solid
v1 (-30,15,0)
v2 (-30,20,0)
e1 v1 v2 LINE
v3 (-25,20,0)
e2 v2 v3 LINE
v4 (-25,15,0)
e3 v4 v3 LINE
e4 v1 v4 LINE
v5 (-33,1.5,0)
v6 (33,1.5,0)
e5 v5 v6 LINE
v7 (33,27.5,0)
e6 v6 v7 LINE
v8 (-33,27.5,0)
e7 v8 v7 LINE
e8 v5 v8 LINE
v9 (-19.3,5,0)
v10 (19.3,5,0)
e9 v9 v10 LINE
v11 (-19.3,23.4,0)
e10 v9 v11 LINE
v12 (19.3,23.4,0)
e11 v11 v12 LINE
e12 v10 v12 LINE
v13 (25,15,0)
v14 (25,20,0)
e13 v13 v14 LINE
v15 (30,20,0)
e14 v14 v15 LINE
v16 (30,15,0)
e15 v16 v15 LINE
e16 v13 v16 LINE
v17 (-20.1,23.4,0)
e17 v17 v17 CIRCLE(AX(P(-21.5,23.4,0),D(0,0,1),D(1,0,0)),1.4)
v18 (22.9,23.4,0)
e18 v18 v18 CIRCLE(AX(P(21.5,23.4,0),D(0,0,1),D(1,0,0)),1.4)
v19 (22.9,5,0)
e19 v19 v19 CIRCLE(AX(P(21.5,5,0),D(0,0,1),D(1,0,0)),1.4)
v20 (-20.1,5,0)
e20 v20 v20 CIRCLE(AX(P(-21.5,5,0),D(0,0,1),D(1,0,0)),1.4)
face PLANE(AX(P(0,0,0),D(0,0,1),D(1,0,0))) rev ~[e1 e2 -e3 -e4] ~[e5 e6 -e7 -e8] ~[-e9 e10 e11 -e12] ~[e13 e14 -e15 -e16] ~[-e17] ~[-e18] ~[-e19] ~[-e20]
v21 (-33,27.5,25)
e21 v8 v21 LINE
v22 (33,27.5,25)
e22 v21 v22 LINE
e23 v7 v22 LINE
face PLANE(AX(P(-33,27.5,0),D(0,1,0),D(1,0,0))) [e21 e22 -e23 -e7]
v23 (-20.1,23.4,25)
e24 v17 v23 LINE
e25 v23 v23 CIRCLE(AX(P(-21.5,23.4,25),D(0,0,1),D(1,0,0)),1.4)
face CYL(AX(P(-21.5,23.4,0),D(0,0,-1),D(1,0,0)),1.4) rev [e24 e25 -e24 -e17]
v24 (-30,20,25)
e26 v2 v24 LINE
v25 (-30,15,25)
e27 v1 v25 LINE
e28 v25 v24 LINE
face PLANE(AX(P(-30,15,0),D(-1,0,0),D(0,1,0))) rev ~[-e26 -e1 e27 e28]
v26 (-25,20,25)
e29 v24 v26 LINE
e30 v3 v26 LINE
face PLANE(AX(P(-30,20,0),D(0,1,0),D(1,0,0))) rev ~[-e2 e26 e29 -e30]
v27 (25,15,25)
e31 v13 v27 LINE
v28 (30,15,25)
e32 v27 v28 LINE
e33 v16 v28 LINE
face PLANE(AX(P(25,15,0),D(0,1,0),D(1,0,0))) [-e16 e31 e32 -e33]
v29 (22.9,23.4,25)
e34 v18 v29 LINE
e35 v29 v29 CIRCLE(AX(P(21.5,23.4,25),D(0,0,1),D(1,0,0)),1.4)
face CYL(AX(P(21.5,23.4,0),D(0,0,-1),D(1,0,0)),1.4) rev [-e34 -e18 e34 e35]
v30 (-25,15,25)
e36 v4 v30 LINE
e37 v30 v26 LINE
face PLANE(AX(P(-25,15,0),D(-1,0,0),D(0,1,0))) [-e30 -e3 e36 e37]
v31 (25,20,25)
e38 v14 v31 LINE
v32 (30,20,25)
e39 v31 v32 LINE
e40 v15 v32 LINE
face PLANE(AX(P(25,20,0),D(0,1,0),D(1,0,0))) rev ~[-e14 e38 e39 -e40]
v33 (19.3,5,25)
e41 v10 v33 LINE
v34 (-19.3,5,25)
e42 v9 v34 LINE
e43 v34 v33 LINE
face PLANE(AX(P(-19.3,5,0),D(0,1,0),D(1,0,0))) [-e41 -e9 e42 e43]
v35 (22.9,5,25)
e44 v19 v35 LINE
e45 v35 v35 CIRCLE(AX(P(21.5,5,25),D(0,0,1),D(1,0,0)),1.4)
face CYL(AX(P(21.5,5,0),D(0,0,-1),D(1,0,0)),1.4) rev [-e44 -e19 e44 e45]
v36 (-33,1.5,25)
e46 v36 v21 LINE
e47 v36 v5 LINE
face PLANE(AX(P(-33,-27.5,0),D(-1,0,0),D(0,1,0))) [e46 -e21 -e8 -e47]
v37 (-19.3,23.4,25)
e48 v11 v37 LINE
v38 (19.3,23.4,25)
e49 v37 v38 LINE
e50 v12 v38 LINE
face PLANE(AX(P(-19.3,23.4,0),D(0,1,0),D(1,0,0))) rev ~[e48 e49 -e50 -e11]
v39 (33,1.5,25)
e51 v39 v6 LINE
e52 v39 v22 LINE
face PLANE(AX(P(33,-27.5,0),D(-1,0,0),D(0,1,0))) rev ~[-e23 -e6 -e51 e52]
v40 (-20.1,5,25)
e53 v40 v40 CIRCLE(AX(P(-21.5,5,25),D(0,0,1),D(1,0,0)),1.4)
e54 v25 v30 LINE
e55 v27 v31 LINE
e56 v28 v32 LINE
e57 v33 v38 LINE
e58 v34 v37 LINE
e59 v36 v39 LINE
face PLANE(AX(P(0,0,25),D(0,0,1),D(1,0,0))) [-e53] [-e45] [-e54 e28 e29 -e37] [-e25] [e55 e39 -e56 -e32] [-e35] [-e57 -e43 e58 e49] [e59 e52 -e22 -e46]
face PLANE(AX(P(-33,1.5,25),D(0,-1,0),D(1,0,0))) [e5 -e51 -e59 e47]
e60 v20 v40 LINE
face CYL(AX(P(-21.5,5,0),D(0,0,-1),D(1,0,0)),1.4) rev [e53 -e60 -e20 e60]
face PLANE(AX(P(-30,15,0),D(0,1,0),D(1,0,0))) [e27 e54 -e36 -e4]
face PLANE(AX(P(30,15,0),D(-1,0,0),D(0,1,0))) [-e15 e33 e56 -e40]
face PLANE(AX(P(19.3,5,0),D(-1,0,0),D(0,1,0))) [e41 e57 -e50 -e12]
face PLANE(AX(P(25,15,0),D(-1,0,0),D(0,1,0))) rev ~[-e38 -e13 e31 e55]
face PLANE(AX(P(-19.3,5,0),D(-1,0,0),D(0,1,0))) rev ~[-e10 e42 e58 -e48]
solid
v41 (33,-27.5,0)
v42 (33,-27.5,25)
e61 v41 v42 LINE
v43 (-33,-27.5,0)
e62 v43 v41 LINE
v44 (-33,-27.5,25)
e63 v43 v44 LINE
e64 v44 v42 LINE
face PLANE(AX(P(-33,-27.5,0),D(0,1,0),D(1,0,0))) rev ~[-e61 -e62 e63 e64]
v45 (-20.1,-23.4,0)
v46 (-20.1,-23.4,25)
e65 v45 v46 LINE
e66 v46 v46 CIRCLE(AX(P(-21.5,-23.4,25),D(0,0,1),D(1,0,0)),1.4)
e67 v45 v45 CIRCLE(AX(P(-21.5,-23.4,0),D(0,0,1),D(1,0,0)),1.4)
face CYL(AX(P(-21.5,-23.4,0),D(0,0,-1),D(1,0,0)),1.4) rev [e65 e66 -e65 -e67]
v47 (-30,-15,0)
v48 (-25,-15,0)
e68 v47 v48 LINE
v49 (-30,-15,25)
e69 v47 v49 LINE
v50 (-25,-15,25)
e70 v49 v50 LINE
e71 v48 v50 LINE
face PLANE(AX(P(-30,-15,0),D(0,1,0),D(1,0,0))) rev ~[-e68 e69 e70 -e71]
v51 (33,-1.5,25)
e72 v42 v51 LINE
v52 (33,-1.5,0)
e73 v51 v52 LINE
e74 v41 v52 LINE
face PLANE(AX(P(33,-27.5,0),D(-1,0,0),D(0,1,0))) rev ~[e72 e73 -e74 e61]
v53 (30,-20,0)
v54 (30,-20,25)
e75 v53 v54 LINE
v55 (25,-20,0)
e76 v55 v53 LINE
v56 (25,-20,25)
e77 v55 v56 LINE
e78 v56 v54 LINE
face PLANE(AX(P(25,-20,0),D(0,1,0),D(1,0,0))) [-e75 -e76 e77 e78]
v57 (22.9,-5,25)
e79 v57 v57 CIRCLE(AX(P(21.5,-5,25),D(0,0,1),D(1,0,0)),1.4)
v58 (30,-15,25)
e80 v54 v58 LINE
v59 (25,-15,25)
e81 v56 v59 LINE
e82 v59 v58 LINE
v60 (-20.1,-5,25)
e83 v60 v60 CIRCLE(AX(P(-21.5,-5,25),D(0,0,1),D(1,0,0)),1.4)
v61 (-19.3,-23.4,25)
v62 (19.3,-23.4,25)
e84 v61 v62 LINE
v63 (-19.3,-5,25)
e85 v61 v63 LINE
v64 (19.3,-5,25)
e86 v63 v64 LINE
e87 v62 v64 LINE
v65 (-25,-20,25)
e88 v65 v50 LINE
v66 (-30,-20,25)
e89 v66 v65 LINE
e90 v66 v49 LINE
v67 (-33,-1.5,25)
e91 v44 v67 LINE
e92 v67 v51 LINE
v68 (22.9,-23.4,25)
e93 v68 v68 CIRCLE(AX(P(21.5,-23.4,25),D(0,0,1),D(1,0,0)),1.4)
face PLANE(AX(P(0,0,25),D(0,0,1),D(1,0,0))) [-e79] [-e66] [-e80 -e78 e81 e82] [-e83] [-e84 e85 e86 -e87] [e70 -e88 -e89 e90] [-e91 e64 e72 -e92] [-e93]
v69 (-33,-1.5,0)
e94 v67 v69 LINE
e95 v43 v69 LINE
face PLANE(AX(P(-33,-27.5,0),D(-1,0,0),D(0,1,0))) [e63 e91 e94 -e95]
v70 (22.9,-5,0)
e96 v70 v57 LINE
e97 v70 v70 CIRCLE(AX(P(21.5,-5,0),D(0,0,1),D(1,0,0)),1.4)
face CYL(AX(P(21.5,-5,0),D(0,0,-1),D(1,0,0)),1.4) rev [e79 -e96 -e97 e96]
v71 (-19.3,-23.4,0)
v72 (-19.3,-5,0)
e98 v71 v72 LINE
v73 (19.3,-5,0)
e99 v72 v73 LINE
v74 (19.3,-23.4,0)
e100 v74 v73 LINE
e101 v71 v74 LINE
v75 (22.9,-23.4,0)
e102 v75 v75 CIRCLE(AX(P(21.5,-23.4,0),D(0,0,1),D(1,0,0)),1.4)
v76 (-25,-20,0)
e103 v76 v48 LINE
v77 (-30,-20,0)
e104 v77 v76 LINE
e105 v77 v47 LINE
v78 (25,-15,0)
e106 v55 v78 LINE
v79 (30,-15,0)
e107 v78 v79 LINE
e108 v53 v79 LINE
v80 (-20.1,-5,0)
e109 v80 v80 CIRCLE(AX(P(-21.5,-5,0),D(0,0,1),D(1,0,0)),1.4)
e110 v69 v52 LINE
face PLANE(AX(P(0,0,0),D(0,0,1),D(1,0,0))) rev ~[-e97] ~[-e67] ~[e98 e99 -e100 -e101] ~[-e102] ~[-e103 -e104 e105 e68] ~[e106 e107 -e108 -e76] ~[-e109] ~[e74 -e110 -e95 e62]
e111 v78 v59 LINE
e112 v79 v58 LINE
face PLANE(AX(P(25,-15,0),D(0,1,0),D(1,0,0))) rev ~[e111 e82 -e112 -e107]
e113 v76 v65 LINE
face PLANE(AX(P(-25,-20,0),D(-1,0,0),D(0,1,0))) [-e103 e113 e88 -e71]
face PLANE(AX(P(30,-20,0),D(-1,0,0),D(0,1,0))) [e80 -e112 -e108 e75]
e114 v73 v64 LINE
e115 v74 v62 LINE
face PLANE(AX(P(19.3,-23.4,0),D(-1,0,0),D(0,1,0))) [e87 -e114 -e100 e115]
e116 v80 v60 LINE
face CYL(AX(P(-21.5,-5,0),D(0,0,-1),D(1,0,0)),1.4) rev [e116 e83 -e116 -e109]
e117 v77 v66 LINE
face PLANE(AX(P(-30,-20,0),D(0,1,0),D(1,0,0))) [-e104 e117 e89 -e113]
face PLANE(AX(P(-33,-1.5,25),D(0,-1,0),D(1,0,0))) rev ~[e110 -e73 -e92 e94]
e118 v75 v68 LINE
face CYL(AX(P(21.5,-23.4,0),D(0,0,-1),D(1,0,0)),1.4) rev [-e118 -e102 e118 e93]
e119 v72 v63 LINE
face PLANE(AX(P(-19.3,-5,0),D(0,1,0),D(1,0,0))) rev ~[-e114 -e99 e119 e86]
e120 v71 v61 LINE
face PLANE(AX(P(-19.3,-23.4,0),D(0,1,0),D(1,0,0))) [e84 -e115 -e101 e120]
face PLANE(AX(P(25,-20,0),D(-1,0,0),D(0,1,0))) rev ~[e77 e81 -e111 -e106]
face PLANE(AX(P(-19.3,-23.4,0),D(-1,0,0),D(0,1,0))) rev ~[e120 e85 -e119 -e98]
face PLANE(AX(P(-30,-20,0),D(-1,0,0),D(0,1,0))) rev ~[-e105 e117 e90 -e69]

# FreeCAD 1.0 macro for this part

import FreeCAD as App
import Part
import Sketcher

V = App.Vector

doc = App.newDocument("Part")
params = doc.addObject("Spreadsheet::Sheet", "Params")
for row, (alias, value) in enumerate([
    ("sketch1_diameter", "2.8 mm"),
    ("sketch1_width", "66 mm"),
    ("sketch1_width2", "5 mm"),
    ("sketch1_height", "55 mm"),
    ("sketch1_width3", "38.6 mm"),
    ("pad1_length", "25 mm"),
    ("sketch2_width", "66 mm"),
    ("sketch2_height", "3 mm"),
    ("pocket1_length", "25 mm"),
], start=1):
    params.set(f"A{row}", alias)
    params.set(f"B{row}", "=" + value)
    params.setAlias(f"B{row}", alias)

body = doc.addObject("PartDesign::Body", "Body")
body.AllowCompound = True

sketch1 = doc.addObject("Sketcher::SketchObject", "Sketch")
body.addObject(sketch1)
sketch1.AttachmentSupport = (doc.XY_Plane, [""])
sketch1.MapMode = "FlatFace"
sketch1.addGeometry([
    Part.LineSegment(V(-33, 27.5, 0), V(-33, -27.5, 0)),
    Part.LineSegment(V(-33, -27.5, 0), V(33, -27.5, 0)),
    Part.LineSegment(V(33, -27.5, 0), V(33, 27.5, 0)),
    Part.LineSegment(V(33, 27.5, 0), V(-33, 27.5, 0)),
    Part.Circle(V(-21.5, -23.4, 0), V(0, 0, 1), 1.4),
    Part.LineSegment(V(-25, -20, 0), V(-30, -20, 0)),
    Part.LineSegment(V(-30, -20, 0), V(-30, -15, 0)),
    Part.LineSegment(V(-30, -15, 0), V(-25, -15, 0)),
    Part.LineSegment(V(-25, -15, 0), V(-25, -20, 0)),
    Part.Circle(V(-21.5, -5, 0), V(0, 0, 1), 1.4),
    Part.LineSegment(V(19.3, -23.4, 0), V(-19.3, -23.4, 0)),
    Part.LineSegment(V(-19.3, -23.4, 0), V(-19.3, -5, 0)),
    Part.LineSegment(V(-19.3, -5, 0), V(19.3, -5, 0)),
    Part.LineSegment(V(19.3, -5, 0), V(19.3, -23.4, 0)),
    Part.Circle(V(21.5, -23.4, 0), V(0, 0, 1), 1.4),
    Part.LineSegment(V(30, -20, 0), V(25, -20, 0)),
    Part.LineSegment(V(25, -20, 0), V(25, -15, 0)),
    Part.LineSegment(V(25, -15, 0), V(30, -15, 0)),
    Part.LineSegment(V(30, -15, 0), V(30, -20, 0)),
    Part.Circle(V(21.5, -5, 0), V(0, 0, 1), 1.4),
    Part.Circle(V(-21.5, 5, 0), V(0, 0, 1), 1.4),
    Part.LineSegment(V(-25, 15, 0), V(-30, 15, 0)),
    Part.LineSegment(V(-30, 15, 0), V(-30, 20, 0)),
    Part.LineSegment(V(-30, 20, 0), V(-25, 20, 0)),
    Part.LineSegment(V(-25, 20, 0), V(-25, 15, 0)),
    Part.Circle(V(-21.5, 23.4, 0), V(0, 0, 1), 1.4),
    Part.Circle(V(21.5, 5, 0), V(0, 0, 1), 1.4),
    Part.LineSegment(V(19.3, 5, 0), V(-19.3, 5, 0)),
    Part.LineSegment(V(-19.3, 5, 0), V(-19.3, 23.4, 0)),
    Part.LineSegment(V(-19.3, 23.4, 0), V(19.3, 23.4, 0)),
    Part.LineSegment(V(19.3, 23.4, 0), V(19.3, 5, 0)),
    Part.LineSegment(V(30, 15, 0), V(25, 15, 0)),
    Part.LineSegment(V(25, 15, 0), V(25, 20, 0)),
    Part.LineSegment(V(25, 20, 0), V(30, 20, 0)),
    Part.LineSegment(V(30, 20, 0), V(30, 15, 0)),
    Part.Circle(V(21.5, 23.4, 0), V(0, 0, 1), 1.4),
], False)
sketch1.addConstraint([
    Sketcher.Constraint("Coincident", 0, 2, 1, 1),
    Sketcher.Constraint("Coincident", 1, 2, 2, 1),
    Sketcher.Constraint("Coincident", 2, 2, 3, 1),
    Sketcher.Constraint("Coincident", 3, 2, 0, 1),
    Sketcher.Constraint("Coincident", 5, 2, 6, 1),
    Sketcher.Constraint("Coincident", 6, 2, 7, 1),
    Sketcher.Constraint("Coincident", 7, 2, 8, 1),
    Sketcher.Constraint("Coincident", 8, 2, 5, 1),
    Sketcher.Constraint("Coincident", 10, 2, 11, 1),
    Sketcher.Constraint("Coincident", 11, 2, 12, 1),
    Sketcher.Constraint("Coincident", 12, 2, 13, 1),
    Sketcher.Constraint("Coincident", 13, 2, 10, 1),
    Sketcher.Constraint("Coincident", 15, 2, 16, 1),
    Sketcher.Constraint("Coincident", 16, 2, 17, 1),
    Sketcher.Constraint("Coincident", 17, 2, 18, 1),
    Sketcher.Constraint("Coincident", 18, 2, 15, 1),
    Sketcher.Constraint("Coincident", 21, 2, 22, 1),
    Sketcher.Constraint("Coincident", 22, 2, 23, 1),
    Sketcher.Constraint("Coincident", 23, 2, 24, 1),
    Sketcher.Constraint("Coincident", 24, 2, 21, 1),
    Sketcher.Constraint("Coincident", 27, 2, 28, 1),
    Sketcher.Constraint("Coincident", 28, 2, 29, 1),
    Sketcher.Constraint("Coincident", 29, 2, 30, 1),
    Sketcher.Constraint("Coincident", 30, 2, 27, 1),
    Sketcher.Constraint("Coincident", 31, 2, 32, 1),
    Sketcher.Constraint("Coincident", 32, 2, 33, 1),
    Sketcher.Constraint("Coincident", 33, 2, 34, 1),
    Sketcher.Constraint("Coincident", 34, 2, 31, 1),
    Sketcher.Constraint("Vertical", 0),
    Sketcher.Constraint("Horizontal", 1),
    Sketcher.Constraint("Vertical", 2),
    Sketcher.Constraint("Horizontal", 3),
    Sketcher.Constraint("Horizontal", 5),
    Sketcher.Constraint("Vertical", 6),
    Sketcher.Constraint("Horizontal", 7),
    Sketcher.Constraint("Vertical", 8),
    Sketcher.Constraint("Horizontal", 10),
    Sketcher.Constraint("Vertical", 11),
    Sketcher.Constraint("Horizontal", 12),
    Sketcher.Constraint("Vertical", 13),
    Sketcher.Constraint("Horizontal", 15),
    Sketcher.Constraint("Vertical", 16),
    Sketcher.Constraint("Horizontal", 17),
    Sketcher.Constraint("Vertical", 18),
    Sketcher.Constraint("Horizontal", 21),
    Sketcher.Constraint("Vertical", 22),
    Sketcher.Constraint("Horizontal", 23),
    Sketcher.Constraint("Vertical", 24),
    Sketcher.Constraint("Horizontal", 27),
    Sketcher.Constraint("Vertical", 28),
    Sketcher.Constraint("Horizontal", 29),
    Sketcher.Constraint("Vertical", 30),
    Sketcher.Constraint("Horizontal", 31),
    Sketcher.Constraint("Vertical", 32),
    Sketcher.Constraint("Horizontal", 33),
    Sketcher.Constraint("Vertical", 34),
    Sketcher.Constraint("Equal", 4, 9),
    Sketcher.Constraint("Equal", 9, 14),
    Sketcher.Constraint("Equal", 14, 19),
    Sketcher.Constraint("Equal", 19, 20),
    Sketcher.Constraint("Equal", 20, 25),
    Sketcher.Constraint("Equal", 25, 26),
    Sketcher.Constraint("Equal", 26, 35),
    Sketcher.Constraint("Symmetric", 19, 3, 20, 3, -1, 1),
    Sketcher.Constraint("Symmetric", 14, 3, 25, 3, -1, 1),
    Sketcher.Constraint("Symmetric", 9, 3, 26, 3, -1, 1),
    Sketcher.Constraint("Symmetric", 4, 3, 35, 3, -1, 1),
    Sketcher.Constraint("Symmetric", 0, 2, 2, 2, -1, 1),
    Sketcher.Constraint("Symmetric", 17, 2, 21, 2, -1, 1),
    Sketcher.Constraint("Symmetric", 15, 2, 23, 2, -1, 1),
    Sketcher.Constraint("Symmetric", 12, 2, 27, 2, -1, 1),
    Sketcher.Constraint("Symmetric", 10, 2, 29, 2, -1, 1),
    Sketcher.Constraint("Symmetric", 7, 2, 31, 2, -1, 1),
    Sketcher.Constraint("Symmetric", 5, 2, 33, 2, -1, 1),
    Sketcher.Constraint("Symmetric", 4, 3, 14, 3, -2),
    Sketcher.Constraint("Symmetric", 9, 3, 19, 3, -2),
    Sketcher.Constraint("Symmetric", 8, 2, 15, 2, -2),
    Sketcher.Constraint("Symmetric", 6, 2, 17, 2, -2),
    Sketcher.Constraint("Horizontal", 14, 3, 10, 2),
    Sketcher.Constraint("Horizontal", 19, 3, 11, 2),
    Sketcher.Constraint("Vertical", 4, 3, 9, 3),
    Sketcher.Constraint("Vertical", 11, 2, 27, 2),
    Sketcher.Constraint("Equal", 33, 6),
    Sketcher.Constraint("Diameter", 4, 2.8),
    Sketcher.Constraint("DistanceX", 1, 1, 1, 2, 66.0),
    Sketcher.Constraint("DistanceX", 5, 2, 5, 1, 5.0),
    Sketcher.Constraint("DistanceY", 0, 2, 0, 1, 55.0),
    Sketcher.Constraint("DistanceX", 10, 2, 10, 1, 38.6),
    Sketcher.Constraint("DistanceY", 11, 1, 11, 2, 18.4),
    Sketcher.Constraint("DistanceY", 9, 3, -1, 1, 5.0),
    Sketcher.Constraint("DistanceX", 5, 2, -1, 1, 30.0),
    Sketcher.Constraint("DistanceY", 5, 2, -1, 1, 20.0),
    Sketcher.Constraint("DistanceX", 4, 3, 14, 3, 43.0),
])
sketch1.setExpression("Constraints[83]", "Params.sketch1_diameter")
sketch1.setExpression("Constraints[84]", "Params.sketch1_width")
sketch1.setExpression("Constraints[85]", "Params.sketch1_width2")
sketch1.setExpression("Constraints[86]", "Params.sketch1_height")
sketch1.setExpression("Constraints[87]", "Params.sketch1_width3")
pad1 = doc.addObject("PartDesign::Pad", "Pad")
body.addObject(pad1)
pad1.Profile = sketch1
pad1.setExpression("Length", "Params.pad1_length")

sketch2 = doc.addObject("Sketcher::SketchObject", "Sketch001")
body.addObject(sketch2)
sketch2.AttachmentSupport = (doc.XY_Plane, [""])
sketch2.MapMode = "FlatFace"
sketch2.AttachmentOffset = App.Placement(V(0, 0, 25), App.Rotation())
sketch2.addGeometry([
    Part.LineSegment(V(-33, 1.5, 0), V(-33, -1.5, 0)),
    Part.LineSegment(V(-33, -1.5, 0), V(33, -1.5, 0)),
    Part.LineSegment(V(33, -1.5, 0), V(33, 1.5, 0)),
    Part.LineSegment(V(33, 1.5, 0), V(-33, 1.5, 0)),
], False)
sketch2.addConstraint([
    Sketcher.Constraint("Coincident", 0, 2, 1, 1),
    Sketcher.Constraint("Coincident", 1, 2, 2, 1),
    Sketcher.Constraint("Coincident", 2, 2, 3, 1),
    Sketcher.Constraint("Coincident", 3, 2, 0, 1),
    Sketcher.Constraint("Vertical", 0),
    Sketcher.Constraint("Horizontal", 1),
    Sketcher.Constraint("Vertical", 2),
    Sketcher.Constraint("Horizontal", 3),
    Sketcher.Constraint("Symmetric", 0, 2, 2, 2, -1, 1),
    Sketcher.Constraint("DistanceX", 1, 1, 1, 2, 66.0),
    Sketcher.Constraint("DistanceY", 0, 2, 0, 1, 3.0),
])
sketch2.setExpression("Constraints[9]", "Params.sketch2_width")
sketch2.setExpression("Constraints[10]", "Params.sketch2_height")
pocket1 = doc.addObject("PartDesign::Pocket", "Pocket")
body.addObject(pocket1)
pocket1.Profile = sketch2
pocket1.setExpression("Length", "Params.pocket1_length")

doc.recompute()
